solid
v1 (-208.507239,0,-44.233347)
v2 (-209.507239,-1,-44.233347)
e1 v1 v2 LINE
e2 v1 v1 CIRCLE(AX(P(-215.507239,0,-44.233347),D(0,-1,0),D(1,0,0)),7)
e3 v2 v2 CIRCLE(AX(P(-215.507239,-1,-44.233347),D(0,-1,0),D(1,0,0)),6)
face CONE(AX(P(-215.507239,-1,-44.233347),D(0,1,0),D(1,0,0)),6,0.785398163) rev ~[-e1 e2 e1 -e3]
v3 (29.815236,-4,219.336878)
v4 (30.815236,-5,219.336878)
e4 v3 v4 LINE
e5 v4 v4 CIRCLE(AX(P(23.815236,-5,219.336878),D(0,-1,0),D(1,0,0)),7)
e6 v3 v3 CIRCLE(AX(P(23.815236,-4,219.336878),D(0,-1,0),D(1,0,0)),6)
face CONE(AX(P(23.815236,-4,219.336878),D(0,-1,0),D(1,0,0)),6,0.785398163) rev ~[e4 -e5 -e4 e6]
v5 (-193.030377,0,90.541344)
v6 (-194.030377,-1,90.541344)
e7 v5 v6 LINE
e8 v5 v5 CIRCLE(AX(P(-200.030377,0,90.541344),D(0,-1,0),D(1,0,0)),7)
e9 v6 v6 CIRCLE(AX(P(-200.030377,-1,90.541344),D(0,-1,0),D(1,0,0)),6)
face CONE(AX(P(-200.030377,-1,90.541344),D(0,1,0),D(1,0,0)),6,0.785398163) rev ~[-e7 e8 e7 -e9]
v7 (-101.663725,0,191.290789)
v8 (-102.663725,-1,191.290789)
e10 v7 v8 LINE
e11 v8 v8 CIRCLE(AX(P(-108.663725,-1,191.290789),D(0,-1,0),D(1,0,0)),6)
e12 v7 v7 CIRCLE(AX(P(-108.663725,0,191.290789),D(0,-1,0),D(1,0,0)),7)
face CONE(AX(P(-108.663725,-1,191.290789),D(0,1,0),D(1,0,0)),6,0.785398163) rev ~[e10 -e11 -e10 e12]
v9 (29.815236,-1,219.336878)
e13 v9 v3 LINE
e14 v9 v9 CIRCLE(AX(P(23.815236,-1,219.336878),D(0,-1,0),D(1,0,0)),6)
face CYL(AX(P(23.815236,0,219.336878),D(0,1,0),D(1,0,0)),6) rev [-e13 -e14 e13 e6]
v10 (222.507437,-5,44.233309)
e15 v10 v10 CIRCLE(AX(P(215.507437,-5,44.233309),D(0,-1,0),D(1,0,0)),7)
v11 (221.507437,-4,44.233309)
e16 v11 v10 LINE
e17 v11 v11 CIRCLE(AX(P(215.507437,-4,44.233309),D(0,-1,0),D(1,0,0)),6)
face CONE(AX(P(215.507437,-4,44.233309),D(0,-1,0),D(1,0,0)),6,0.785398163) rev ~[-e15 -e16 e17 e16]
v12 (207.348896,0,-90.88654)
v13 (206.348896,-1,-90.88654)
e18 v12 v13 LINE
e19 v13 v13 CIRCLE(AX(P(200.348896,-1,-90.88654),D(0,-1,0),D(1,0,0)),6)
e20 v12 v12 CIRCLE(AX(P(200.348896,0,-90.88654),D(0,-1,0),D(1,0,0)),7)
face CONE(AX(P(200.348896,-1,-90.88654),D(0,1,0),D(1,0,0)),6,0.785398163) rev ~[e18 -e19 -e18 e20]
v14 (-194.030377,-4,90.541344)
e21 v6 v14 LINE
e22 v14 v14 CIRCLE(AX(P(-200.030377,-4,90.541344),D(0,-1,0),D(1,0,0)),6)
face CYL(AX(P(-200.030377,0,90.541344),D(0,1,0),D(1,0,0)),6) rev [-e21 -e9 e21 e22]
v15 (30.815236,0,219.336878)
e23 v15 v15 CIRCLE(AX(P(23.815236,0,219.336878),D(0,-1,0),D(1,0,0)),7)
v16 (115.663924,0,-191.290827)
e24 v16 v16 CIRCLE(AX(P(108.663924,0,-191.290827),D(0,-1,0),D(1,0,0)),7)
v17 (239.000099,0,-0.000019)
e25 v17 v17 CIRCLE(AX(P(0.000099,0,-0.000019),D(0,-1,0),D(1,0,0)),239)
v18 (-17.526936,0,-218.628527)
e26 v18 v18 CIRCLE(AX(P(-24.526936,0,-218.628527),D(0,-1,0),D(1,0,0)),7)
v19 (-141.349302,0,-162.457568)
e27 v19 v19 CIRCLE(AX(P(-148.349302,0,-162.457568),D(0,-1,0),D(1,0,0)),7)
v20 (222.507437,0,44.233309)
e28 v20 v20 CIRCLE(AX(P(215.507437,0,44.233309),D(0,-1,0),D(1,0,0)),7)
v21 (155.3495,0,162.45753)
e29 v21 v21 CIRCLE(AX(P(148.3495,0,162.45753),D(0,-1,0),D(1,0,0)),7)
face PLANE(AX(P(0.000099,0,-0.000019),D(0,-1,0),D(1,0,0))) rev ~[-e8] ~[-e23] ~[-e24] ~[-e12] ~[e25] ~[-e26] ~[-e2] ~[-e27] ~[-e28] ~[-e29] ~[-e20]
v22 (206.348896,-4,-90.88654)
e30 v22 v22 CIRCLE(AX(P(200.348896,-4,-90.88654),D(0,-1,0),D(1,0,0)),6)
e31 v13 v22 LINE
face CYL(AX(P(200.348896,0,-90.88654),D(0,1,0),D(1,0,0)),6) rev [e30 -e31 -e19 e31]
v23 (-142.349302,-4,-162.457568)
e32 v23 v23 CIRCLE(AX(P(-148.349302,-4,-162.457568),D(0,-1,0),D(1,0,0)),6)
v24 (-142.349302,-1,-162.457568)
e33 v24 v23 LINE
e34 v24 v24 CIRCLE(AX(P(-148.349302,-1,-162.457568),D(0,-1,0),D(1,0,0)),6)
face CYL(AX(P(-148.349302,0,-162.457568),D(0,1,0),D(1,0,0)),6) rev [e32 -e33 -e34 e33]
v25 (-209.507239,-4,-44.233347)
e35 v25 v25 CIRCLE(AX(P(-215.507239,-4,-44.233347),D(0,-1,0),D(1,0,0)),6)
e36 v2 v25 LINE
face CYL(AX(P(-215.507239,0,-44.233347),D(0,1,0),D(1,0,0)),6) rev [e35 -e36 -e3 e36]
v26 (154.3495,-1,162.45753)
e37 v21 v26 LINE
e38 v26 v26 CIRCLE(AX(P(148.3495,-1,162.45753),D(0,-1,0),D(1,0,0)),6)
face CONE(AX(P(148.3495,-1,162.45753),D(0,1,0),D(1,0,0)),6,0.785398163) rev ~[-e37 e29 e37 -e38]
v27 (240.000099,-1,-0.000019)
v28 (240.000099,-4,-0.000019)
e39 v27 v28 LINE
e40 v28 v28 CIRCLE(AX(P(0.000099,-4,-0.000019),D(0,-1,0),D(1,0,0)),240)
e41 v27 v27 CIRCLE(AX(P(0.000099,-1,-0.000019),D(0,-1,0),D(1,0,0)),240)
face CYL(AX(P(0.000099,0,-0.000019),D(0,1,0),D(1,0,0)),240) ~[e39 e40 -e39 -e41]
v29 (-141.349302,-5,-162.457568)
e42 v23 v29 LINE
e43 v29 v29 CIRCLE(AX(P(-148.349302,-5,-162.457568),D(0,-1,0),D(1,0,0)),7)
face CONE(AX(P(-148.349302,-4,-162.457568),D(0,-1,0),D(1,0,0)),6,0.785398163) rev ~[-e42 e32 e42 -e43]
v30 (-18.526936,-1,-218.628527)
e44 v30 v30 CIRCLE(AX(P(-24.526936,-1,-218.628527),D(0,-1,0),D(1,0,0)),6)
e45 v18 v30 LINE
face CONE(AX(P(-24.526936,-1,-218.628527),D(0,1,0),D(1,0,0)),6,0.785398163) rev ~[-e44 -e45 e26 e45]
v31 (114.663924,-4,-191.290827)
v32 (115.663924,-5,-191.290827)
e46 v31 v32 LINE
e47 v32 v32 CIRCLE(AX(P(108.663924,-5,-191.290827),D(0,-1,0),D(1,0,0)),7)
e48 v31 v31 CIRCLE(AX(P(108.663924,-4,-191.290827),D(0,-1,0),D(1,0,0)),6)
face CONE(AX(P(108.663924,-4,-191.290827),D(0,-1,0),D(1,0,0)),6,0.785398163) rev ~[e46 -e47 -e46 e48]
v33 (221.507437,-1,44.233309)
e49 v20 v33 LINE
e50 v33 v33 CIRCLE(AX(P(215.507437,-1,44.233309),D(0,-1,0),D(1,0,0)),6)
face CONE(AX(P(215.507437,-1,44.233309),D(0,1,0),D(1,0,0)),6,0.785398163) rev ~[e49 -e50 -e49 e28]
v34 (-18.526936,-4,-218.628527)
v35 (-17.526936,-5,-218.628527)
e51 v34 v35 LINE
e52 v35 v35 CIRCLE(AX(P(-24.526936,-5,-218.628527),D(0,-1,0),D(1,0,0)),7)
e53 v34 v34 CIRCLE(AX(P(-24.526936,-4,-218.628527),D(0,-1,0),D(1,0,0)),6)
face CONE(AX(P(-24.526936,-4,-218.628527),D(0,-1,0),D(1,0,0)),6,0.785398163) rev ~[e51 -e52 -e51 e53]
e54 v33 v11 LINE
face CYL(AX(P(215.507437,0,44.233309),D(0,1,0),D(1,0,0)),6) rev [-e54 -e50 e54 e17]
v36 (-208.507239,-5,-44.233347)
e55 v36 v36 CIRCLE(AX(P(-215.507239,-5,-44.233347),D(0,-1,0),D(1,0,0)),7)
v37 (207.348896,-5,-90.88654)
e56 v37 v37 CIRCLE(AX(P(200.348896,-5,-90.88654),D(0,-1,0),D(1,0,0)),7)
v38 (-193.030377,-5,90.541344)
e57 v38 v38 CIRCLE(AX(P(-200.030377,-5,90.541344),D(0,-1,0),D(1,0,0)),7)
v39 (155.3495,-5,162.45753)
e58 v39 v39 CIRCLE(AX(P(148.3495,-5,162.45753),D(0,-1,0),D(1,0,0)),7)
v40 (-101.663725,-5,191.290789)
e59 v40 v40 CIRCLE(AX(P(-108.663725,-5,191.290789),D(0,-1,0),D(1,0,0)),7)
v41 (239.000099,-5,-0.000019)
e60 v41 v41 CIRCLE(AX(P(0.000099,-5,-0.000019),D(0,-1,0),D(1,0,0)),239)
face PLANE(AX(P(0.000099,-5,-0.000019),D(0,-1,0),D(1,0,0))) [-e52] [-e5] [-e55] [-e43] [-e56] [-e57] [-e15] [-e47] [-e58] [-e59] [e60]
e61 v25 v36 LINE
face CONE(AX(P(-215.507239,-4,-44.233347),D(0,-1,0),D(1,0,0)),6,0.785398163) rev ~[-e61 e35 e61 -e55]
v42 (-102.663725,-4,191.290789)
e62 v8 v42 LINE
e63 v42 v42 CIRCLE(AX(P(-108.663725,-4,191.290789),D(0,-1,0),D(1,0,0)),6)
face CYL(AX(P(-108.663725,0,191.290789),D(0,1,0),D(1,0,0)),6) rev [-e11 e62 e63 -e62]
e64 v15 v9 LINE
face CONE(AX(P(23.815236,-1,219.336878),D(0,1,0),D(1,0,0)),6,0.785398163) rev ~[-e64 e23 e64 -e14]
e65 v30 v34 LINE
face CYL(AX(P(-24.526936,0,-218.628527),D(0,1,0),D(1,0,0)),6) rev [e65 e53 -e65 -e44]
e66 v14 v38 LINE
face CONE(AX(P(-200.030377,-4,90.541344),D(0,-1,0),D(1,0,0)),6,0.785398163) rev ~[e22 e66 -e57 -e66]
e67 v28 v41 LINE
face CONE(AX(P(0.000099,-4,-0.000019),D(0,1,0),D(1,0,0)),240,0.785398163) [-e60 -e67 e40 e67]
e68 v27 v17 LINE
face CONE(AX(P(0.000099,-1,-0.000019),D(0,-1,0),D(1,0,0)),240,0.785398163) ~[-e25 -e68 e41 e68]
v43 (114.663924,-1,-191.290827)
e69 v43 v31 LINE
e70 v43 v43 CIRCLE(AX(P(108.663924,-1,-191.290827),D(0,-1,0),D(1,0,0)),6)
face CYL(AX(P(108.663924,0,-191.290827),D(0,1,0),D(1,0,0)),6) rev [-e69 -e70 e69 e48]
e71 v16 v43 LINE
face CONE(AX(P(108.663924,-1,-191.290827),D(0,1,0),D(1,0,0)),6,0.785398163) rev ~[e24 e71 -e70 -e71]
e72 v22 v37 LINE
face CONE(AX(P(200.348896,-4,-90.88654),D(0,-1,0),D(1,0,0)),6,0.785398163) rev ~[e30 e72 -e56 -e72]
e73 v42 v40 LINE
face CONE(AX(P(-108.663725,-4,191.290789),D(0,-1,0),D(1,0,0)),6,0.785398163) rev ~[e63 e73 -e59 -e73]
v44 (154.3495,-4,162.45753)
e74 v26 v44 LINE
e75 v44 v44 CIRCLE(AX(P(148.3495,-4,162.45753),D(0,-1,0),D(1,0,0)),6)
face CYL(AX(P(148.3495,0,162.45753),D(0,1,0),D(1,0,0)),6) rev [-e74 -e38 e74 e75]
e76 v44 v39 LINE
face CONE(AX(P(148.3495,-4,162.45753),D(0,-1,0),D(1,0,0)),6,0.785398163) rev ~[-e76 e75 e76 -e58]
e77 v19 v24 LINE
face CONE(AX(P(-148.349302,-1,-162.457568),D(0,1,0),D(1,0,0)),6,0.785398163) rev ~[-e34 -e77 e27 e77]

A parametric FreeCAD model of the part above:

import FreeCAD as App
import Part
import Sketcher
Q = App.Units.Quantity


def edges_at(feature, points):
    """Names of the edges that pass closest to the given points."""
    edges = feature.Shape.Edges
    near = lambda p: min(range(len(edges)), key=lambda i: edges[i].distToShape(Part.Vertex(*p))[0])
    return sorted({f"Edge{near(p) + 1}" for p in points})

doc = App.newDocument("Part")
params = doc.addObject("Spreadsheet::Sheet", "Params")
for row, (alias, value) in enumerate([
    ("sketch1_diameter", "480 mm"),
    ("sketch1_diameter2", "12 mm"),
    ("pad1_length", "5 mm"),
    ("chamfer_size", "1 mm"),
    ("chamfer2_size", "1 mm"),
], start=1):
    params.set(f"A{row}", alias)
    params.set(f"B{row}", "=" + value)
    params.setAlias(f"B{row}", alias)

body = doc.addObject("PartDesign::Body", "Body")

# Sketch on XZ plane
sketch1 = body.newObject("Sketcher::SketchObject", "Sketch")
sketch1.AttachmentSupport = (doc.getObject("XZ_Plane"), [""])
sketch1.MapMode = "FlatFace"
sketch1.addGeometry(Part.Circle(App.Vector(0.000099, -0.000019, 0), App.Vector(0, 0, 1), 240), False)
sketch1.addGeometry(Part.Circle(App.Vector(-148.349302, -162.457568, 0), App.Vector(0, 0, 1), 6), False)
sketch1.addGeometry(Part.Circle(App.Vector(-24.526936, -218.628527, 0), App.Vector(0, 0, 1), 6), False)
sketch1.addGeometry(Part.Circle(App.Vector(-215.507239, -44.233347, 0), App.Vector(0, 0, 1), 6), False)
sketch1.addGeometry(Part.Circle(App.Vector(108.663924, -191.290827, 0), App.Vector(0, 0, 1), 6), False)
sketch1.addGeometry(Part.Circle(App.Vector(200.348896, -90.88654, 0), App.Vector(0, 0, 1), 6), False)
sketch1.addGeometry(Part.Circle(App.Vector(-200.030377, 90.541344, 0), App.Vector(0, 0, 1), 6), False)
sketch1.addGeometry(Part.Circle(App.Vector(-108.663725, 191.290789, 0), App.Vector(0, 0, 1), 6), False)
sketch1.addGeometry(Part.Circle(App.Vector(215.507437, 44.233309, 0), App.Vector(0, 0, 1), 6), False)
sketch1.addGeometry(Part.Circle(App.Vector(23.815236, 219.336878, 0), App.Vector(0, 0, 1), 6), False)
sketch1.addGeometry(Part.Circle(App.Vector(148.3495, 162.45753, 0), App.Vector(0, 0, 1), 6), False)
sketch1.addConstraint(Sketcher.Constraint("Equal", 1, 2))
sketch1.addConstraint(Sketcher.Constraint("Equal", 2, 3))
sketch1.addConstraint(Sketcher.Constraint("Equal", 3, 4))
sketch1.addConstraint(Sketcher.Constraint("Equal", 4, 5))
sketch1.addConstraint(Sketcher.Constraint("Equal", 5, 6))
sketch1.addConstraint(Sketcher.Constraint("Equal", 6, 7))
sketch1.addConstraint(Sketcher.Constraint("Equal", 7, 8))
sketch1.addConstraint(Sketcher.Constraint("Equal", 8, 9))
sketch1.addConstraint(Sketcher.Constraint("Equal", 9, 10))
sketch1.addConstraint(Sketcher.Constraint("Diameter", 0, Q("480 mm")))
sketch1.addConstraint(Sketcher.Constraint("Diameter", 1, Q("12 mm")))
sketch1.addConstraint(Sketcher.Constraint("DistanceX", 1, 3, -1, 1, Q("148.349302 mm")))
sketch1.addConstraint(Sketcher.Constraint("DistanceX", -1, 1, 10, 3, Q("148.3495 mm")))
sketch1.addConstraint(Sketcher.Constraint("DistanceX", 1, 3, 0, 3, Q("148.349401 mm")))
sketch1.addConstraint(Sketcher.Constraint("DistanceY", 2, 3, 4, 3, Q("27.3377 mm")))
sketch1.addConstraint(Sketcher.Constraint("DistanceX", 1, 3, 5, 3, Q("348.698198 mm")))
sketch1.addConstraint(Sketcher.Constraint("DistanceX", 6, 3, 4, 3, Q("308.694301 mm")))
sketch1.addConstraint(Sketcher.Constraint("DistanceX", 9, 3, 8, 3, Q("191.692201 mm")))
sketch1.addConstraint(Sketcher.Constraint("DistanceY", 1, 3, -1, 1, Q("162.457568 mm")))
sketch1.addConstraint(Sketcher.Constraint("DistanceX", 3, 3, -1, 1, Q("215.507239 mm")))
sketch1.addConstraint(Sketcher.Constraint("DistanceY", 5, 3, -1, 1, Q("90.88654 mm")))
sketch1.addConstraint(Sketcher.Constraint("DistanceY", -1, 1, 7, 3, Q("191.290789 mm")))
sketch1.addConstraint(Sketcher.Constraint("DistanceY", -1, 1, 8, 3, Q("44.233309 mm")))
sketch1.addConstraint(Sketcher.Constraint("DistanceY", -1, 1, 9, 3, Q("219.336878 mm")))
sketch1.addConstraint(Sketcher.Constraint("DistanceY", -1, 1, 10, 3, Q("162.45753 mm")))
sketch1.addConstraint(Sketcher.Constraint("DistanceY", 1, 3, 0, 3, Q("162.457549 mm")))
sketch1.addConstraint(Sketcher.Constraint("DistanceY", 2, 3, 1, 3, Q("56.170959 mm")))
sketch1.addConstraint(Sketcher.Constraint("DistanceY", 1, 3, 3, 3, Q("118.224221 mm")))
sketch1.addConstraint(Sketcher.Constraint("DistanceX", 2, 3, 4, 3, Q("133.19086 mm")))
sketch1.addConstraint(Sketcher.Constraint("DistanceX", 4, 3, 5, 3, Q("91.684972 mm")))
sketch1.addConstraint(Sketcher.Constraint("DistanceY", 3, 3, 6, 3, Q("134.774691 mm")))
sketch1.addConstraint(Sketcher.Constraint("DistanceX", 6, 3, 7, 3, Q("91.366652 mm")))
sketch1.addConstraint(Sketcher.Constraint("DistanceX", 5, 3, 8, 3, Q("15.158541 mm")))
sketch1.setExpression("Constraints[9]", "Params.sketch1_diameter")
sketch1.setExpression("Constraints[10]", "Params.sketch1_diameter2")
pad1 = body.newObject("PartDesign::Pad", "Pad")
pad1.Profile = sketch1
pad1.setExpression("Length", "Params.pad1_length")
doc.recompute()

chamfer = body.newObject("PartDesign::Chamfer", "Chamfer")
chamfer.Base = (pad1, edges_at(pad1, [
    (-240, -5, 0),
    (-154.349, -5, -162.458),
    (-30.527, -5, -218.629),
    (-221.507, -5, -44.233),
    (102.664, -5, -191.291),
    (194.349, -5, -90.887),
    (-206.03, -5, 90.541),
    (-114.664, -5, 191.291),
    (209.507, -5, 44.233),
    (17.815, -5, 219.337),
    (142.35, -5, 162.458),
]))
chamfer.setExpression("Size", "Params.chamfer_size")
doc.recompute()

chamfer2 = body.newObject("PartDesign::Chamfer", "Chamfer001")
chamfer2.Base = (chamfer, edges_at(chamfer, [
    (-240, 0, 0),
    (-154.349, 0, -162.458),
    (-30.527, 0, -218.629),
    (-221.507, 0, -44.233),
    (102.664, 0, -191.291),
    (194.349, 0, -90.887),
    (-206.03, 0, 90.541),
    (-114.664, 0, 191.291),
    (209.507, 0, 44.233),
    (17.815, 0, 219.337),
    (142.35, 0, 162.458),
]))
chamfer2.setExpression("Size", "Params.chamfer2_size")

doc.recompute()
